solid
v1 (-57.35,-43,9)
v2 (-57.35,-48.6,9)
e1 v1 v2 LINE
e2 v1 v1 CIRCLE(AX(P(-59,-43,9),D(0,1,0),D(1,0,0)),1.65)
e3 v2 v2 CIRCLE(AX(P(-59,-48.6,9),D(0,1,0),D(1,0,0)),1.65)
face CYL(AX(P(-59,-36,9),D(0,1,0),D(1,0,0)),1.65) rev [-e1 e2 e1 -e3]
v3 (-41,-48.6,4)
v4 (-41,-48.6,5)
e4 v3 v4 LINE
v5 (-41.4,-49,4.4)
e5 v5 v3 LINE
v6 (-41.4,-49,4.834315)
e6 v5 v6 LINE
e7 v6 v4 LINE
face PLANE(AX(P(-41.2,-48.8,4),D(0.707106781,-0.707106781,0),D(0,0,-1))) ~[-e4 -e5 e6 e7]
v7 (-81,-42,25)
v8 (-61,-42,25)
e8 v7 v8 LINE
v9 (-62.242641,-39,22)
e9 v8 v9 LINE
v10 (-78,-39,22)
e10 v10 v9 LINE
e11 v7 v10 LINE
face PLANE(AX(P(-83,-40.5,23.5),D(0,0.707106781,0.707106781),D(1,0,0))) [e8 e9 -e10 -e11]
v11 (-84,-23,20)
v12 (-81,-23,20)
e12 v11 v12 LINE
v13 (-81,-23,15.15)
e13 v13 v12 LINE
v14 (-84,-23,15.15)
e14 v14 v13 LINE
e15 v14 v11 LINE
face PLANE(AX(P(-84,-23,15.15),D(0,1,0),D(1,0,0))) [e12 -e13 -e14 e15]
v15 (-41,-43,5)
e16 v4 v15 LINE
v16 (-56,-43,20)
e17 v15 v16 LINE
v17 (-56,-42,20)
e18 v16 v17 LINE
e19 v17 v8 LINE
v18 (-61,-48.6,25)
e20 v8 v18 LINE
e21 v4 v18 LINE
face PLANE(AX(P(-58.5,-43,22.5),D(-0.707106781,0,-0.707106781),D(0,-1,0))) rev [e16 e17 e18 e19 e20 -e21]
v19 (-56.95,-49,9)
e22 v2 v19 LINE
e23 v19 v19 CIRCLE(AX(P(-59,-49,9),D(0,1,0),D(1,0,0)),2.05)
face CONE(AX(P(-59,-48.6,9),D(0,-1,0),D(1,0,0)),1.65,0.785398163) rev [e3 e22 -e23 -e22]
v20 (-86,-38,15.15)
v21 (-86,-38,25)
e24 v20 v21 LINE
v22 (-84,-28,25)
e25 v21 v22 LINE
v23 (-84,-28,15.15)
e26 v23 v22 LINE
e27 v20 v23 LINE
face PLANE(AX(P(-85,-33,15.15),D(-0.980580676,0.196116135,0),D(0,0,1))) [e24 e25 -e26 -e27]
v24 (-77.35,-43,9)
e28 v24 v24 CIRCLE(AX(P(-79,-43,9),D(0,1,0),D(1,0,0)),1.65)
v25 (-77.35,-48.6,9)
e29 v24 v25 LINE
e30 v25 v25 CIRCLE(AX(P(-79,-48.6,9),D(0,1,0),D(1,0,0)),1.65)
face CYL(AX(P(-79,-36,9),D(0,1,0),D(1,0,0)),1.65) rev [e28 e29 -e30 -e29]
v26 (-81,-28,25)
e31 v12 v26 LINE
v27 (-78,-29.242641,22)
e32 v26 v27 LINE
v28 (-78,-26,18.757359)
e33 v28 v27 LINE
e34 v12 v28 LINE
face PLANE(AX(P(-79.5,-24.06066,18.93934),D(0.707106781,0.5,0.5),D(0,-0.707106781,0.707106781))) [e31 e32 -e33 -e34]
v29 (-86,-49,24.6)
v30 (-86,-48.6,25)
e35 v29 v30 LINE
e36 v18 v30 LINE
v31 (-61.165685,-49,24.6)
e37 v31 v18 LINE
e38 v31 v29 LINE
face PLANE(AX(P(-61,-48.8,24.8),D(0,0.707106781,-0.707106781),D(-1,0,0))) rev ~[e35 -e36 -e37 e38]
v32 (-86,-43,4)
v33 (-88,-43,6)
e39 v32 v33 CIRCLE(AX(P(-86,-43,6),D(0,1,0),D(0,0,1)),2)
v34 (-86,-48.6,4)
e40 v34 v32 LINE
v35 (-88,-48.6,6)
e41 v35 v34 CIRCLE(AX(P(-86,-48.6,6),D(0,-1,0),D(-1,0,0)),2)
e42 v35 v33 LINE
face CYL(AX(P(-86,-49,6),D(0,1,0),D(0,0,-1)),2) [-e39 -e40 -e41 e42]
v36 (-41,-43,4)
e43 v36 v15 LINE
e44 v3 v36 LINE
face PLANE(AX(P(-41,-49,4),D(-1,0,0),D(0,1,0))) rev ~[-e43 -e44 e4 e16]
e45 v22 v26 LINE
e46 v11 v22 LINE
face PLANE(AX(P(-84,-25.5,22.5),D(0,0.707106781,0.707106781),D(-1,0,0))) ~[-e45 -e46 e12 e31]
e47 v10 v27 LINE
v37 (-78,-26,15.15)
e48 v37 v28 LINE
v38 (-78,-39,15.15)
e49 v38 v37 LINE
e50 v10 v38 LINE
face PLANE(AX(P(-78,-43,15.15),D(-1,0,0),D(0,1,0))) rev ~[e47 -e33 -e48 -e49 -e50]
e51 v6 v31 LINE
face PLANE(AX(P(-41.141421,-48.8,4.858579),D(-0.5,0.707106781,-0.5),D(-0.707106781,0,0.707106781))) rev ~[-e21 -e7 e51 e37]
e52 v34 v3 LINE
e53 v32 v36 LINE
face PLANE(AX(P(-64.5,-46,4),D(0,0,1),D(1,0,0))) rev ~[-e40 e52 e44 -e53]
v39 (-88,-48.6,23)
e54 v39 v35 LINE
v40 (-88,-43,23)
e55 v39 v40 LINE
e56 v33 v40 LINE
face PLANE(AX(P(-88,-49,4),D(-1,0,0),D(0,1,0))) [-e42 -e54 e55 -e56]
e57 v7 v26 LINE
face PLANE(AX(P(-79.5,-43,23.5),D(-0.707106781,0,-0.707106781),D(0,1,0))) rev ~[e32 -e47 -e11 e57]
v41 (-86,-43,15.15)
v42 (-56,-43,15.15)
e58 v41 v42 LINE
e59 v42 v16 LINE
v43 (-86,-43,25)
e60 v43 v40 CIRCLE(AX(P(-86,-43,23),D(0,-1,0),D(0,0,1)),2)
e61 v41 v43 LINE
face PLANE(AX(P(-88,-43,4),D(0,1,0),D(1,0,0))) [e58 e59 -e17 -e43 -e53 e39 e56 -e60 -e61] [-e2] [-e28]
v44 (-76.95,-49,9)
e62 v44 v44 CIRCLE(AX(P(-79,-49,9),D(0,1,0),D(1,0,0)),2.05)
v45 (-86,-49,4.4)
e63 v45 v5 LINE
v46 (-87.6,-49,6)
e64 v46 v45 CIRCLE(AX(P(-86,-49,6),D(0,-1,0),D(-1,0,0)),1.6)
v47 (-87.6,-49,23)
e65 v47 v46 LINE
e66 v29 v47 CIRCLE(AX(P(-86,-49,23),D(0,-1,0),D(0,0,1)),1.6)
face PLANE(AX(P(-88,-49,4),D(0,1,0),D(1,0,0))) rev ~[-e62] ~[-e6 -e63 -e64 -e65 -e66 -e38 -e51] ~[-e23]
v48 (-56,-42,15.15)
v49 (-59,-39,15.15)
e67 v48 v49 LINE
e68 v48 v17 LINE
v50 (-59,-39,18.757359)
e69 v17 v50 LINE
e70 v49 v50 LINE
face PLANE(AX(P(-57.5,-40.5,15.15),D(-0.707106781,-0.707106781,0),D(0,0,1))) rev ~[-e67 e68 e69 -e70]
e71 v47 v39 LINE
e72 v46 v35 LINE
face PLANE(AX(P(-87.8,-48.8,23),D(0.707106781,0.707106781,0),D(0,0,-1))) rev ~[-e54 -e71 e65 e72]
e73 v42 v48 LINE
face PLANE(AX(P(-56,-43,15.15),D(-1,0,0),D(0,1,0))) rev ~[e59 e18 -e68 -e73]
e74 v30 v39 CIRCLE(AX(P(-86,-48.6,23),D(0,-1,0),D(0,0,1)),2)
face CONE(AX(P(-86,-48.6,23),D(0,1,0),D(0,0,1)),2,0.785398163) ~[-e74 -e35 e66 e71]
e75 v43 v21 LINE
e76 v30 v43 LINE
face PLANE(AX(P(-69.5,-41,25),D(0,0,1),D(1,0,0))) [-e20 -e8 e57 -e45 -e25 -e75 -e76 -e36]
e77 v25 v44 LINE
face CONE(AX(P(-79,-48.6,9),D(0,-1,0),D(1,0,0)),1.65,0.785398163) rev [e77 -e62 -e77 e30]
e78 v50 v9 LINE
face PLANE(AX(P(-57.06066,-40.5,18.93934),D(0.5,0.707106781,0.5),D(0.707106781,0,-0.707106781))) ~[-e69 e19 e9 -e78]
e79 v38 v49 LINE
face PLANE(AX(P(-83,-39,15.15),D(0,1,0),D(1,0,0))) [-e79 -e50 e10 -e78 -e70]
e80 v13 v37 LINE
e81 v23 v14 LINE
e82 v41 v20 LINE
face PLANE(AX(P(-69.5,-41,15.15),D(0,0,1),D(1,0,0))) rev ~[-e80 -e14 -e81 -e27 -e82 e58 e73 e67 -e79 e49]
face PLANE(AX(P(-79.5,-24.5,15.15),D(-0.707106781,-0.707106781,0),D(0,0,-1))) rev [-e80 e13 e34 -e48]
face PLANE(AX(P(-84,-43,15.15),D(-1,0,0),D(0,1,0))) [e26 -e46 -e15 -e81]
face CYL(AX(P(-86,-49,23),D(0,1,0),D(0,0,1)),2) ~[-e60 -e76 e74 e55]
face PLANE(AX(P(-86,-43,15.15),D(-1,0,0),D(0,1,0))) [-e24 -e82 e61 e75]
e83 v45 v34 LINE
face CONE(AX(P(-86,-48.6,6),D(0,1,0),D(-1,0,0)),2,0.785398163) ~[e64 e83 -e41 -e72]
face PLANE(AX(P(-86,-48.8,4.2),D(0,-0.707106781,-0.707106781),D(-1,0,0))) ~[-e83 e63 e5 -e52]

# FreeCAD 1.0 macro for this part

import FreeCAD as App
import Part
import Sketcher

V = App.Vector
Q = App.Units.Quantity


def edges_at(feature, points):
    """Names of the edges that pass closest to the given points."""
    edges = feature.Shape.Edges
    near = lambda p: min(range(len(edges)), key=lambda i: edges[i].distToShape(Part.Vertex(*p))[0])
    return sorted({f"Edge{near(p) + 1}" for p in points})


def add_polygon(sketch, points):
    """Adds a closed chain of lines whose ends are joined by coincident constraints."""
    first, n = sketch.GeometryCount, len(points)
    for a, b in zip(points, points[1:] + points[:1]):
        sketch.addGeometry(Part.LineSegment(App.Vector(*a, 0), App.Vector(*b, 0)), False)
    for i in range(n):
        sketch.addConstraint(Sketcher.Constraint("Coincident", first + i, 2, first + (i + 1) % n, 1))

doc = App.newDocument("Part")
body = doc.addObject("PartDesign::Body", "Body")

# Sketch on XZ plane
sketch1 = body.newObject("Sketcher::SketchObject", "Sketch")
sketch1.AttachmentSupport = (doc.getObject("XZ_Plane"), [""])
sketch1.MapMode = "FlatFace"
sketch1.AttachmentOffset = App.Placement(V(0, 0, 36), App.Rotation())
sketch1.addGeometry(Part.Circle(V(-59, 9, 0), V(0, 0, 1), 1.6), False)
sketch1.addConstraint(Sketcher.Constraint("Diameter", 0, Q("3.3 mm")))
sketch1.addConstraint(Sketcher.Constraint("DistanceX", 0, 3, -1, 1, Q("59 mm")))
sketch1.addConstraint(Sketcher.Constraint("DistanceY", -1, 1, 0, 3, Q("9 mm")))
pad1 = body.newObject("PartDesign::Pad", "Pad")
pad1.Profile = sketch1
pad1.Length = 15
body2 = doc.addObject("PartDesign::Body", "Body001")
body2.AllowCompound = True

# Sketch on XZ plane
sketch2 = body2.newObject("Sketcher::SketchObject", "Sketch001")
sketch2.AttachmentSupport = (doc.getObject("XZ_Plane001"), [""])
sketch2.MapMode = "FlatFace"
sketch2.AttachmentOffset = App.Placement(V(0, 0, 36), App.Rotation())
sketch2.addGeometry(Part.Circle(V(-79, 9, 0), V(0, 0, 1), 1.6), False)
sketch2.addConstraint(Sketcher.Constraint("Diameter", 0, Q("3.3 mm")))
sketch2.addConstraint(Sketcher.Constraint("DistanceX", 0, 3, -1, 1, Q("79 mm")))
sketch2.addConstraint(Sketcher.Constraint("DistanceY", -1, 1, 0, 3, Q("9 mm")))
pad2 = body2.newObject("PartDesign::Pad", "Pad001")
pad2.Profile = sketch2
pad2.Length = 15
doc.recompute()

boolean = body2.newObject("PartDesign::Boolean", "Boolean")
boolean.Type = "Fuse"
boolean.addObjects([body])
body3 = doc.addObject("PartDesign::Body", "Body002")

# Sketch on XY plane
sketch3 = body3.newObject("Sketcher::SketchObject", "Sketch002")
sketch3.AttachmentSupport = (doc.getObject("XY_Plane002"), [""])
sketch3.MapMode = "FlatFace"
sketch3.AttachmentOffset = App.Placement(V(0, 0, 15.15), App.Rotation())
add_polygon(sketch3, [(-86, -28), (-86, -43), (-82, -43), (-82, -28)])  # lines 0-3
sketch3.addConstraint(Sketcher.Constraint("Vertical", 0))
sketch3.addConstraint(Sketcher.Constraint("Horizontal", 1))
sketch3.addConstraint(Sketcher.Constraint("Vertical", 2))
sketch3.addConstraint(Sketcher.Constraint("Horizontal", 3))
sketch3.addConstraint(Sketcher.Constraint("DistanceX", 1, 1, 1, 2, Q("4 mm")))
sketch3.addConstraint(Sketcher.Constraint("DistanceY", 0, 2, 0, 1, Q("15 mm")))
sketch3.addConstraint(Sketcher.Constraint("DistanceX", 0, 2, -1, 1, Q("86 mm")))
sketch3.addConstraint(Sketcher.Constraint("DistanceY", 0, 2, -1, 1, Q("43 mm")))
pad3 = body3.newObject("PartDesign::Pad", "Pad002")
pad3.Profile = sketch3
pad3.Length = 9.85
doc.recompute()

chamfer = body3.newObject("PartDesign::Chamfer", "Chamfer")
chamfer.Base = (pad3, edges_at(pad3, [(-86, -28, 20.075)]))
chamfer.ChamferType = "Two distances"
chamfer.Size = 10
chamfer.Size2 = 2
body4 = doc.addObject("PartDesign::Body", "Body003")

# Sketch on XY plane
sketch4 = body4.newObject("Sketcher::SketchObject", "Sketch003")
sketch4.AttachmentSupport = (doc.getObject("XY_Plane003"), [""])
sketch4.MapMode = "FlatFace"
sketch4.AttachmentOffset = App.Placement(V(0, 0, 15.15), App.Rotation())
add_polygon(sketch4, [(-84, -23), (-84, -43), (-78, -43), (-78, -23)])  # lines 0-3
sketch4.addConstraint(Sketcher.Constraint("Vertical", 0))
sketch4.addConstraint(Sketcher.Constraint("Horizontal", 1))
sketch4.addConstraint(Sketcher.Constraint("Vertical", 2))
sketch4.addConstraint(Sketcher.Constraint("Horizontal", 3))
sketch4.addConstraint(Sketcher.Constraint("DistanceX", 1, 1, 1, 2, Q("6 mm")))
sketch4.addConstraint(Sketcher.Constraint("DistanceY", 0, 2, 0, 1, Q("20 mm")))
sketch4.addConstraint(Sketcher.Constraint("DistanceX", 0, 2, -1, 1, Q("84 mm")))
sketch4.addConstraint(Sketcher.Constraint("DistanceY", 0, 2, -1, 1, Q("43 mm")))
pad4 = body4.newObject("PartDesign::Pad", "Pad003")
pad4.Profile = sketch4
pad4.Length = 9.85
doc.recompute()

chamfer2 = body4.newObject("PartDesign::Chamfer", "Chamfer001")
chamfer2.Base = (pad4, edges_at(pad4, [(-81, -23, 25)]))
chamfer2.Size = 5
doc.recompute()

chamfer3 = body4.newObject("PartDesign::Chamfer", "Chamfer002")
chamfer3.Base = (chamfer2, edges_at(chamfer2, [(-78, -35.5, 25), (-78, -25.5, 22.5), (-78, -23, 17.575)]))
chamfer3.Size = 3
body5 = doc.addObject("PartDesign::Body", "Body004")

# Sketch on XY plane
sketch5 = body5.newObject("Sketcher::SketchObject", "Sketch004")
sketch5.AttachmentSupport = (doc.getObject("XY_Plane004"), [""])
sketch5.MapMode = "FlatFace"
sketch5.AttachmentOffset = App.Placement(V(0, 0, 15.15), App.Rotation())
add_polygon(sketch5, [(-83, -39), (-83, -43), (-56, -43), (-56, -39)])  # lines 0-3
sketch5.addConstraint(Sketcher.Constraint("Vertical", 0))
sketch5.addConstraint(Sketcher.Constraint("Horizontal", 1))
sketch5.addConstraint(Sketcher.Constraint("Vertical", 2))
sketch5.addConstraint(Sketcher.Constraint("Horizontal", 3))
sketch5.addConstraint(Sketcher.Constraint("DistanceX", 1, 1, 1, 2, Q("27 mm")))
sketch5.addConstraint(Sketcher.Constraint("DistanceY", 0, 2, 0, 1, Q("4 mm")))
sketch5.addConstraint(Sketcher.Constraint("DistanceX", 0, 2, -1, 1, Q("83 mm")))
sketch5.addConstraint(Sketcher.Constraint("DistanceY", 0, 2, -1, 1, Q("43 mm")))
pad5 = body5.newObject("PartDesign::Pad", "Pad004")
pad5.Profile = sketch5
pad5.Length = 9.85
doc.recompute()

chamfer4 = body5.newObject("PartDesign::Chamfer", "Chamfer003")
chamfer4.Base = (pad5, edges_at(pad5, [(-56, -41, 25)]))
chamfer4.Size = 5
doc.recompute()

chamfer5 = body5.newObject("PartDesign::Chamfer", "Chamfer004")
chamfer5.Base = (chamfer4, edges_at(chamfer4, [(-56, -39, 17.575), (-58.5, -39, 22.5), (-72, -39, 25)]))
chamfer5.Size = 3
body6 = doc.addObject("PartDesign::Body", "Body005")

# Sketch on XY plane
sketch6 = body6.newObject("Sketcher::SketchObject", "Sketch005")
sketch6.AttachmentSupport = (doc.getObject("XY_Plane005"), [""])
sketch6.MapMode = "FlatFace"
sketch6.AttachmentOffset = App.Placement(V(0, 0, 4), App.Rotation())
add_polygon(sketch6, [(-88, -43), (-88, -49), (-41, -49), (-41, -43)])  # lines 0-3
sketch6.addConstraint(Sketcher.Constraint("Vertical", 0))
sketch6.addConstraint(Sketcher.Constraint("Horizontal", 1))
sketch6.addConstraint(Sketcher.Constraint("Vertical", 2))
sketch6.addConstraint(Sketcher.Constraint("Horizontal", 3))
sketch6.addConstraint(Sketcher.Constraint("DistanceX", 1, 1, 1, 2, Q("47 mm")))
sketch6.addConstraint(Sketcher.Constraint("DistanceY", 0, 2, 0, 1, Q("6 mm")))
sketch6.addConstraint(Sketcher.Constraint("DistanceX", 0, 2, -1, 1, Q("88 mm")))
sketch6.addConstraint(Sketcher.Constraint("DistanceY", 0, 2, -1, 1, Q("49 mm")))
pad6 = body6.newObject("PartDesign::Pad", "Pad005")
pad6.Profile = sketch6
pad6.Length = 21
doc.recompute()

chamfer6 = body6.newObject("PartDesign::Chamfer", "Chamfer005")
chamfer6.Base = (pad6, edges_at(pad6, [(-41, -46, 25)]))
chamfer6.Size = 20
doc.recompute()

fillet = body6.newObject("PartDesign::Fillet", "Fillet")
fillet.Base = (chamfer6, edges_at(chamfer6, [(-88, -46, 4), (-88, -46, 25)]))
fillet.Radius = 2
doc.recompute()

chamfer7 = body6.newObject("PartDesign::Chamfer", "Chamfer006")
chamfer7.Base = (fillet, edges_at(fillet, [
    (-63.5, -49, 4),
    (-87.414, -49, 4.586),
    (-88, -49, 14.5),
    (-87.414, -49, 24.414),
    (-73.5, -49, 25),
    (-51, -49, 15),
    (-41, -49, 4.5),
]))
chamfer7.Size = 0.4
doc.recompute()

boolean2 = body6.newObject("PartDesign::Boolean", "Boolean001")
boolean2.Type = "Fuse"
boolean2.addObjects([body3])
doc.recompute()

boolean3 = body6.newObject("PartDesign::Boolean", "Boolean002")
boolean3.Type = "Fuse"
boolean3.addObjects([body4])
doc.recompute()

boolean4 = body6.newObject("PartDesign::Boolean", "Boolean003")
boolean4.Type = "Fuse"
boolean4.addObjects([body5])
doc.recompute()

boolean5 = body6.newObject("PartDesign::Boolean", "Boolean004")
boolean5.Type = "Cut"
boolean5.addObjects([body2])
doc.recompute()

chamfer8 = body6.newObject("PartDesign::Chamfer", "Chamfer007")
chamfer8.Base = (boolean5, edges_at(boolean5, [(-80.65, -49, 9), (-60.65, -49, 9)]))
chamfer8.Size = 0.4

doc.recompute()
